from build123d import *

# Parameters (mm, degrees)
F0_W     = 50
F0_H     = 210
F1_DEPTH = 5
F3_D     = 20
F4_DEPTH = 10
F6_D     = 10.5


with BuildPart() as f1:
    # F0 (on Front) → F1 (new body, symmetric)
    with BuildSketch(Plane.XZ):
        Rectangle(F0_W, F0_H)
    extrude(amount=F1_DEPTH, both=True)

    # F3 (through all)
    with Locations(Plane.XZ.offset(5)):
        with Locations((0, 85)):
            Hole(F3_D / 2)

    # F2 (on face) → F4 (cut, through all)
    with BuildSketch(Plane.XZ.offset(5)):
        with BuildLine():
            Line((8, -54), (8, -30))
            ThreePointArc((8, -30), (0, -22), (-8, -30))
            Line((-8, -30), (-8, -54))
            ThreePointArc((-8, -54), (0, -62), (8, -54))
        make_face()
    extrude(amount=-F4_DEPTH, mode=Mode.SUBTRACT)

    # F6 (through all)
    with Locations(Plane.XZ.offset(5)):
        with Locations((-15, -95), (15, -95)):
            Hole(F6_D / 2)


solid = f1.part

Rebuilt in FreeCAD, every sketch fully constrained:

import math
import FreeCAD as App
import Part
import Sketcher


def add_polygon(sketch, points):
    """Adds a closed chain of lines whose ends are joined by coincident constraints."""
    first, n = sketch.GeometryCount, len(points)
    for a, b in zip(points, points[1:] + points[:1]):
        sketch.addGeometry(Part.LineSegment(App.Vector(*a, 0), App.Vector(*b, 0)), False)
    for i in range(n):
        sketch.addConstraint(Sketcher.Constraint("Coincident", first + i, 2, first + (i + 1) % n, 1))

doc = App.newDocument("Part")
params = doc.addObject("Spreadsheet::Sheet", "Params")
for row, (alias, value) in enumerate([
    ("sketch1_width", "50 mm"),
    ("sketch1_height", "210 mm"),
    ("pad1_length", "10 mm"),
    ("sketch2_diameter", "20 mm"),
    ("hole_diameter", "20 mm"),
    ("sketch3_radius", "8 mm"),
    ("sketch3_height", "24 mm"),
    ("sketch4_diameter", "10.5 mm"),
    ("hole2_diameter", "10.5 mm"),
], start=1):
    params.set(f"A{row}", alias)
    params.set(f"B{row}", "=" + value)
    params.setAlias(f"B{row}", alias)

body = doc.addObject("PartDesign::Body", "Body")

sketch1 = doc.addObject("Sketcher::SketchObject", "Sketch")
body.addObject(sketch1)
sketch1.AttachmentSupport = (doc.XZ_Plane, [""])
sketch1.MapMode = "FlatFace"
add_polygon(sketch1, [(-25, 105), (-25, -105), (25, -105), (25, 105)])
sketch1.addConstraint([
    Sketcher.Constraint("Vertical", 0),
    Sketcher.Constraint("Horizontal", 1),
    Sketcher.Constraint("Vertical", 2),
    Sketcher.Constraint("Horizontal", 3),
    Sketcher.Constraint("Symmetric", 0, 2, 2, 2, -1, 1),
    Sketcher.Constraint("DistanceX", 1, 1, 1, 2, 50.0),
    Sketcher.Constraint("DistanceY", 0, 2, 0, 1, 210.0),
])
sketch1.setExpression("Constraints[9]", "Params.sketch1_width")
sketch1.setExpression("Constraints[10]", "Params.sketch1_height")
pad1 = doc.addObject("PartDesign::Pad", "Pad")
body.addObject(pad1)
pad1.Profile = sketch1
pad1.setExpression("Length", "Params.pad1_length")
pad1.Midplane = True

sketch2 = doc.addObject("Sketcher::SketchObject", "Sketch001")
body.addObject(sketch2)
sketch2.AttachmentSupport = (doc.XZ_Plane, [""])
sketch2.MapMode = "FlatFace"
sketch2.AttachmentOffset = App.Placement(App.Vector(0, 0, 5), App.Rotation())
sketch2.addGeometry(Part.Circle(App.Vector(0, 85, 0), App.Vector(0, 0, 1), 10), False)
sketch2.addConstraint([
    Sketcher.Constraint("PointOnObject", 0, 3, -2),
    Sketcher.Constraint("Diameter", 0, 20.0),
    Sketcher.Constraint("DistanceY", -1, 1, 0, 3, 85.0),
])
sketch2.setExpression("Constraints[1]", "Params.sketch2_diameter")
doc.recompute()
hole = doc.addObject("PartDesign::Hole", "Hole")
body.addObject(hole)
hole.Profile = sketch2
hole.ThreadType = "None"
hole.setExpression("Diameter", "Params.hole_diameter")
hole.DepthType = "ThroughAll"

sketch3 = doc.addObject("Sketcher::SketchObject", "Sketch002")
body.addObject(sketch3)
sketch3.AttachmentSupport = (doc.XZ_Plane, [""])
sketch3.MapMode = "FlatFace"
sketch3.AttachmentOffset = App.Placement(App.Vector(0, 0, 5), App.Rotation())
sketch3.addGeometry([
    Part.LineSegment(App.Vector(8, -54, 0), App.Vector(8, -30, 0)),
    Part.ArcOfCircle(Part.Circle(App.Vector(0, -30, 0), App.Vector(0, 0, 1), 8), math.radians(0), math.radians(180)),
    Part.LineSegment(App.Vector(-8, -30, 0), App.Vector(-8, -54, 0)),
    Part.ArcOfCircle(Part.Circle(App.Vector(0, -54, 0), App.Vector(0, 0, 1), 8), math.radians(180), math.radians(360)),
], False)
sketch3.addConstraint([
    Sketcher.Constraint("Tangent", 0, 2, 1, 1),
    Sketcher.Constraint("Tangent", 1, 2, 2, 1),
    Sketcher.Constraint("Tangent", 2, 2, 3, 1),
    Sketcher.Constraint("Tangent", 3, 2, 0, 1),
    Sketcher.Constraint("Vertical", 0),
    Sketcher.Constraint("Vertical", 2),
    Sketcher.Constraint("PointOnObject", 1, 3, -2),
    Sketcher.Constraint("Radius", 1, 8.0),
    Sketcher.Constraint("DistanceY", 0, 1, 0, 2, 24.0),
    Sketcher.Constraint("DistanceY", 1, 3, -1, 1, 30.0),
])
sketch3.setExpression("Constraints[7]", "Params.sketch3_radius")
sketch3.setExpression("Constraints[8]", "Params.sketch3_height")
pocket1 = doc.addObject("PartDesign::Pocket", "Pocket")
body.addObject(pocket1)
pocket1.Profile = sketch3
pocket1.Type = "ThroughAll"

sketch4 = doc.addObject("Sketcher::SketchObject", "Sketch003")
body.addObject(sketch4)
sketch4.AttachmentSupport = (doc.XZ_Plane, [""])
sketch4.MapMode = "FlatFace"
sketch4.AttachmentOffset = App.Placement(App.Vector(0, 0, 5), App.Rotation())
sketch4.addGeometry([
    Part.Circle(App.Vector(-15, -95, 0), App.Vector(0, 0, 1), 5),
    Part.Circle(App.Vector(15, -95, 0), App.Vector(0, 0, 1), 5),
], False)
sketch4.addConstraint([
    Sketcher.Constraint("Equal", 0, 1),
    Sketcher.Constraint("Symmetric", 0, 3, 1, 3, -2),
    Sketcher.Constraint("Diameter", 0, 10.5),
    Sketcher.Constraint("DistanceX", 0, 3, -1, 1, 15.0),
    Sketcher.Constraint("DistanceY", 0, 3, -1, 1, 95.0),
])
sketch4.setExpression("Constraints[2]", "Params.sketch4_diameter")
doc.recompute()
hole2 = doc.addObject("PartDesign::Hole", "Hole001")
body.addObject(hole2)
hole2.Profile = sketch4
hole2.ThreadType = "None"
hole2.setExpression("Diameter", "Params.hole2_diameter")
hole2.DepthType = "ThroughAll"

doc.recompute()
